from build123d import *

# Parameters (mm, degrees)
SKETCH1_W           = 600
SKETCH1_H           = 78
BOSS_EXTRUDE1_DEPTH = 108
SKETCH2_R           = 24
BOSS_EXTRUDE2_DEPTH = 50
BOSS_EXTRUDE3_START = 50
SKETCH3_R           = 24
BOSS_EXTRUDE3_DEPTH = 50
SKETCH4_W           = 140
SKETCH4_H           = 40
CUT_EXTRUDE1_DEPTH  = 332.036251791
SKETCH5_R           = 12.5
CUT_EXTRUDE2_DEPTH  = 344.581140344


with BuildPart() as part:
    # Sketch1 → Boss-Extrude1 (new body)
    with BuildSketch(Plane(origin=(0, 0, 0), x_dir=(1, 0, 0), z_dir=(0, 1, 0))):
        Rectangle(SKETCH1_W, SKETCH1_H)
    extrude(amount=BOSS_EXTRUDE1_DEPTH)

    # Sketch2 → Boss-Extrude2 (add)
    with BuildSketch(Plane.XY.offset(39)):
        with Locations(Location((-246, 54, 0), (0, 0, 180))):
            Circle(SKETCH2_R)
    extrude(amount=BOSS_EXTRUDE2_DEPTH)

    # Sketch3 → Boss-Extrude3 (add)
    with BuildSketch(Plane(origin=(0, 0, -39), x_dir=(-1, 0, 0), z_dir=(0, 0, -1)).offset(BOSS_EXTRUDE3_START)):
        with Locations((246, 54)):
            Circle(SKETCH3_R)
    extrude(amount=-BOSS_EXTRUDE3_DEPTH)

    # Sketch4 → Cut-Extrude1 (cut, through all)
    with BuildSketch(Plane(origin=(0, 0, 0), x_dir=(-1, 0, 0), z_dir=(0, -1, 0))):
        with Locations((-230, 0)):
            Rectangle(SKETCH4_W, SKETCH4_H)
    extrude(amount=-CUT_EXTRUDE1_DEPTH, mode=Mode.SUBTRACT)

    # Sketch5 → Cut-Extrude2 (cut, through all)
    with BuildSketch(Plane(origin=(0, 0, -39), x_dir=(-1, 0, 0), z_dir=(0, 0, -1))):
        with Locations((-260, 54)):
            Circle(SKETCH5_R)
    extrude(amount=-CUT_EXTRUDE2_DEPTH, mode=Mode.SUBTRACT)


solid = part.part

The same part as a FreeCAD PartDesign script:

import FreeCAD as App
import Part
import Sketcher

V = App.Vector
Q = App.Units.Quantity


def add_polygon(sketch, points):
    """Adds a closed chain of lines whose ends are joined by coincident constraints."""
    first, n = sketch.GeometryCount, len(points)
    for a, b in zip(points, points[1:] + points[:1]):
        sketch.addGeometry(Part.LineSegment(App.Vector(*a, 0), App.Vector(*b, 0)), False)
    for i in range(n):
        sketch.addConstraint(Sketcher.Constraint("Coincident", first + i, 2, first + (i + 1) % n, 1))

doc = App.newDocument("Part")
body = doc.addObject("PartDesign::Body", "Body")

# Sketch on XZ plane
sketch1 = body.newObject("Sketcher::SketchObject", "Sketch")
sketch1.AttachmentSupport = (doc.getObject("XZ_Plane"), [""])
sketch1.MapMode = "FlatFace"
add_polygon(sketch1, [(-300, -39), (-300, 39), (300, 39), (300, -39)])  # lines 0-3
sketch1.addConstraint(Sketcher.Constraint("Vertical", 0))
sketch1.addConstraint(Sketcher.Constraint("Horizontal", 1))
sketch1.addConstraint(Sketcher.Constraint("Vertical", 2))
sketch1.addConstraint(Sketcher.Constraint("Horizontal", 3))
sketch1.addConstraint(Sketcher.Constraint("Symmetric", 0, 2, 2, 2, -1, 1))
sketch1.addConstraint(Sketcher.Constraint("DistanceX", 1, 1, 1, 2, Q("600 mm")))
sketch1.addConstraint(Sketcher.Constraint("DistanceY", 0, 1, 0, 2, Q("78 mm")))
pad1 = body.newObject("PartDesign::Pad", "Pad")
pad1.Profile = sketch1
pad1.Length = 108
pad1.Reversed = True

# Sketch on XY plane
sketch2 = body.newObject("Sketcher::SketchObject", "Sketch001")
sketch2.AttachmentSupport = (doc.getObject("XY_Plane"), [""])
sketch2.MapMode = "FlatFace"
sketch2.AttachmentOffset = App.Placement(V(0, 0, 39), App.Rotation())
sketch2.addGeometry(Part.Circle(V(-246, 54, 0), V(0, 0, 1), 24), False)
sketch2.addConstraint(Sketcher.Constraint("Diameter", 0, Q("48 mm")))
sketch2.addConstraint(Sketcher.Constraint("DistanceX", 0, 3, -1, 1, Q("246 mm")))
sketch2.addConstraint(Sketcher.Constraint("DistanceY", -1, 1, 0, 3, Q("54 mm")))
pad2 = body.newObject("PartDesign::Pad", "Pad001")
pad2.Profile = sketch2
pad2.Length = 50

# Sketch on XY plane
sketch3 = body.newObject("Sketcher::SketchObject", "Sketch002")
sketch3.AttachmentSupport = (doc.getObject("XY_Plane"), [""])
sketch3.MapMode = "FlatFace"
sketch3.AttachmentOffset = App.Placement(V(0, 0, -89), App.Rotation())
sketch3.addGeometry(Part.Circle(V(-246, 54, 0), V(0, 0, 1), 24), False)
sketch3.addConstraint(Sketcher.Constraint("Diameter", 0, Q("48 mm")))
sketch3.addConstraint(Sketcher.Constraint("DistanceX", 0, 3, -1, 1, Q("246 mm")))
sketch3.addConstraint(Sketcher.Constraint("DistanceY", -1, 1, 0, 3, Q("54 mm")))
pad3 = body.newObject("PartDesign::Pad", "Pad002")
pad3.Profile = sketch3
pad3.Length = 50

# Sketch on XZ plane
sketch4 = body.newObject("Sketcher::SketchObject", "Sketch003")
sketch4.AttachmentSupport = (doc.getObject("XZ_Plane"), [""])
sketch4.MapMode = "FlatFace"
add_polygon(sketch4, [(300, -20), (300, 20), (160, 20), (160, -20)])  # lines 0-3
sketch4.addConstraint(Sketcher.Constraint("Vertical", 0))
sketch4.addConstraint(Sketcher.Constraint("Horizontal", 1))
sketch4.addConstraint(Sketcher.Constraint("Vertical", 2))
sketch4.addConstraint(Sketcher.Constraint("Horizontal", 3))
sketch4.addConstraint(Sketcher.Constraint("DistanceX", 1, 2, 1, 1, Q("140 mm")))
sketch4.addConstraint(Sketcher.Constraint("DistanceY", 0, 1, 0, 2, Q("40 mm")))
sketch4.addConstraint(Sketcher.Constraint("DistanceX", -1, 1, 0, 2, Q("300 mm")))
sketch4.addConstraint(Sketcher.Constraint("DistanceY", -1, 1, 0, 2, Q("20 mm")))
pocket1 = body.newObject("PartDesign::Pocket", "Pocket")
pocket1.Profile = sketch4
pocket1.Type = "ThroughAll"

# Sketch on XY plane
sketch5 = body.newObject("Sketcher::SketchObject", "Sketch004")
sketch5.AttachmentSupport = (doc.getObject("XY_Plane"), [""])
sketch5.MapMode = "FlatFace"
sketch5.AttachmentOffset = App.Placement(V(0, 0, -39), App.Rotation())
sketch5.addGeometry(Part.Circle(V(260, 54, 0), V(0, 0, 1), 12), False)
sketch5.addConstraint(Sketcher.Constraint("Diameter", 0, Q("25 mm")))
sketch5.addConstraint(Sketcher.Constraint("DistanceX", -1, 1, 0, 3, Q("260 mm")))
sketch5.addConstraint(Sketcher.Constraint("DistanceY", -1, 1, 0, 3, Q("54 mm")))
pocket2 = body.newObject("PartDesign::Pocket", "Pocket001")
pocket2.Profile = sketch5
pocket2.Type = "ThroughAll"
pocket2.Reversed = True

doc.recompute()
